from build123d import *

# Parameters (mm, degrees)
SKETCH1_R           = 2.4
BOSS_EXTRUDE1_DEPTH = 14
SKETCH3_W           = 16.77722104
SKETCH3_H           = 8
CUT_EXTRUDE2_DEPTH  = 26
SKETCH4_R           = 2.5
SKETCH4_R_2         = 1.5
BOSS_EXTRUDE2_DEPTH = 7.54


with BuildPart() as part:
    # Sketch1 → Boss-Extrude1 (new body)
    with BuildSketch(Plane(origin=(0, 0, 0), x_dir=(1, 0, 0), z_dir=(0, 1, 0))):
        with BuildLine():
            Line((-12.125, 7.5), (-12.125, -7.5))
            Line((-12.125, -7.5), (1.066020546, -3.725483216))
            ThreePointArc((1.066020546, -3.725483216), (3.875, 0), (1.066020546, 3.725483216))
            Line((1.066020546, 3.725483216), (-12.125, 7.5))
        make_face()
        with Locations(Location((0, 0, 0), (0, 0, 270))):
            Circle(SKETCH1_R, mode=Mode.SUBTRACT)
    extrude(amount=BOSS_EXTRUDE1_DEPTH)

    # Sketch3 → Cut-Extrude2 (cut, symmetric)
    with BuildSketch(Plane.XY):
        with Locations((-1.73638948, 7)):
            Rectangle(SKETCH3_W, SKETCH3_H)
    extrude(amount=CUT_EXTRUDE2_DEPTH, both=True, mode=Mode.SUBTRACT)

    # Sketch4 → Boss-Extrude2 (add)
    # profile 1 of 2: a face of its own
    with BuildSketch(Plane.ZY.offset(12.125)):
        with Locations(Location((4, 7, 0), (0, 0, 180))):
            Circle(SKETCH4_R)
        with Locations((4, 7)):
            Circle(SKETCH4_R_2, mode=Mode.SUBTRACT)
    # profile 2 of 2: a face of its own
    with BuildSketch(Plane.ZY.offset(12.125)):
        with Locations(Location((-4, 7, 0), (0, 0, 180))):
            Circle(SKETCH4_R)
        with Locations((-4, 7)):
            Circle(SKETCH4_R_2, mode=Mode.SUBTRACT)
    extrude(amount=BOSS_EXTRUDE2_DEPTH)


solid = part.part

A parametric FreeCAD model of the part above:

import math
import FreeCAD as App
import Part
import Sketcher
from FreeCAD import Vector

doc = App.newDocument("Part")
params = doc.addObject("Spreadsheet::Sheet", "Params")
for row, (alias, value) in enumerate([
    ("sketch1_diameter", "4.8 mm"),
    ("sketch1_height", "15 mm"),
    ("pad1_length", "14 mm"),
    ("sketch2_height", "8 mm"),
    ("pocket1_length", "52 mm"),
    ("sketch3_diameter", "5 mm"),
    ("sketch3_diameter2", "3 mm"),
    ("pad2_length", "7.54 mm"),
], start=1):
    params.set(f"A{row}", alias)
    params.set(f"B{row}", "=" + value)
    params.setAlias(f"B{row}", alias)

body = doc.addObject("PartDesign::Body", "Body")

sketch1 = body.newObject("Sketcher::SketchObject", "Sketch")
sketch1.AttachmentSupport = (doc.getObject("XZ_Plane"), [""])
sketch1.MapMode = "FlatFace"
sketch1.addGeometry([
    Part.LineSegment(Vector(-12.1, -7.5, 0), Vector(-12.1, 7.5, 0)),
    Part.LineSegment(Vector(-12.1, 7.5, 0), Vector(1.1, 3.7, 0)),
    Part.ArcOfCircle(Part.Circle(Vector(0, 0, 0), Vector(0, 0, 1), 3.9), math.radians(-74), math.radians(74)),
    Part.LineSegment(Vector(1.1, -3.7, 0), Vector(-12.1, -7.5, 0)),
    Part.Circle(Vector(0, 0, 0), Vector(0, 0, 1), 2.4),
], False)
sketch1.addConstraint([
    Sketcher.Constraint("Coincident", 0, 2, 1, 1),
    Sketcher.Constraint("Tangent", 1, 2, 2, 2),
    Sketcher.Constraint("Tangent", 2, 1, 3, 1),
    Sketcher.Constraint("Coincident", 3, 2, 0, 1),
    Sketcher.Constraint("Vertical", 0),
    Sketcher.Constraint("Coincident", 2, 3, -1, 1),
    Sketcher.Constraint("Coincident", 4, 3, -1, 1),
    Sketcher.Constraint("Vertical", 1, 2, 2, 1),
    Sketcher.Constraint("Diameter", 4, 4.8),
    Sketcher.Constraint("DistanceY", 0, 1, 0, 2, 15.0),
    Sketcher.Constraint("Radius", 2, 3.875),
    Sketcher.Constraint("DistanceX", 0, 2, -1, 1, 12.125),
])
sketch1.setExpression("Constraints[8]", "Params.sketch1_diameter")
sketch1.setExpression("Constraints[9]", "Params.sketch1_height")
pad1 = body.newObject("PartDesign::Pad", "Pad")
pad1.Profile = sketch1
pad1.setExpression("Length", "Params.pad1_length")
pad1.Reversed = True

sketch2 = body.newObject("Sketcher::SketchObject", "Sketch001")
sketch2.AttachmentSupport = (doc.getObject("XY_Plane"), [""])
sketch2.MapMode = "FlatFace"
sketch2.addGeometry([
    Part.LineSegment(Vector(-10, 11, 0), Vector(-10, 3, 0)),
    Part.LineSegment(Vector(-10, 3, 0), Vector(7, 3, 0)),
    Part.LineSegment(Vector(7, 3, 0), Vector(7, 11, 0)),
    Part.LineSegment(Vector(7, 11, 0), Vector(-10, 11, 0)),
], False)
sketch2.addConstraint([
    Sketcher.Constraint("Coincident", 0, 2, 1, 1),
    Sketcher.Constraint("Coincident", 1, 2, 2, 1),
    Sketcher.Constraint("Coincident", 2, 2, 3, 1),
    Sketcher.Constraint("Coincident", 3, 2, 0, 1),
    Sketcher.Constraint("Vertical", 0),
    Sketcher.Constraint("Horizontal", 1),
    Sketcher.Constraint("Vertical", 2),
    Sketcher.Constraint("Horizontal", 3),
    Sketcher.Constraint("DistanceY", 0, 2, 0, 1, 8.0),
    Sketcher.Constraint("DistanceY", -1, 1, 0, 2, 3.0),
    Sketcher.Constraint("DistanceX", 0, 2, -1, 1, 10.125),
    Sketcher.Constraint("DistanceX", 1, 1, 1, 2, 16.777221),
])
sketch2.setExpression("Constraints[8]", "Params.sketch2_height")
pocket1 = body.newObject("PartDesign::Pocket", "Pocket")
pocket1.Profile = sketch2
pocket1.setExpression("Length", "Params.pocket1_length")
pocket1.Midplane = True

sketch3 = body.newObject("Sketcher::SketchObject", "Sketch002")
sketch3.AttachmentSupport = (doc.getObject("YZ_Plane"), [""])
sketch3.MapMode = "FlatFace"
sketch3.AttachmentOffset = App.Placement(Vector(0, 0, -12.125), App.Rotation())
sketch3.addGeometry([
    Part.Circle(Vector(7, 4, 0), Vector(0, 0, 1), 2.5),
    Part.Circle(Vector(7, 4, 0), Vector(0, 0, 1), 1.5),
    Part.Circle(Vector(7, -4, 0), Vector(0, 0, 1), 2.5),
    Part.Circle(Vector(7, -4, 0), Vector(0, 0, 1), 1.5),
], False)
sketch3.addConstraint([
    Sketcher.Constraint("Coincident", 1, 3, 0, 3),
    Sketcher.Constraint("Coincident", 3, 3, 2, 3),
    Sketcher.Constraint("Equal", 0, 2),
    Sketcher.Constraint("Equal", 1, 3),
    Sketcher.Constraint("Symmetric", 0, 3, 2, 3, -1),
    Sketcher.Constraint("Diameter", 0, 5.0),
    Sketcher.Constraint("Diameter", 1, 3.0),
    Sketcher.Constraint("DistanceX", -1, 1, 0, 3, 7.0),
    Sketcher.Constraint("DistanceY", -1, 1, 0, 3, 4.0),
])
sketch3.setExpression("Constraints[5]", "Params.sketch3_diameter")
sketch3.setExpression("Constraints[6]", "Params.sketch3_diameter2")
pad2 = body.newObject("PartDesign::Pad", "Pad001")
pad2.Profile = sketch3
pad2.setExpression("Length", "Params.pad2_length")
pad2.Reversed = True

doc.recompute()
